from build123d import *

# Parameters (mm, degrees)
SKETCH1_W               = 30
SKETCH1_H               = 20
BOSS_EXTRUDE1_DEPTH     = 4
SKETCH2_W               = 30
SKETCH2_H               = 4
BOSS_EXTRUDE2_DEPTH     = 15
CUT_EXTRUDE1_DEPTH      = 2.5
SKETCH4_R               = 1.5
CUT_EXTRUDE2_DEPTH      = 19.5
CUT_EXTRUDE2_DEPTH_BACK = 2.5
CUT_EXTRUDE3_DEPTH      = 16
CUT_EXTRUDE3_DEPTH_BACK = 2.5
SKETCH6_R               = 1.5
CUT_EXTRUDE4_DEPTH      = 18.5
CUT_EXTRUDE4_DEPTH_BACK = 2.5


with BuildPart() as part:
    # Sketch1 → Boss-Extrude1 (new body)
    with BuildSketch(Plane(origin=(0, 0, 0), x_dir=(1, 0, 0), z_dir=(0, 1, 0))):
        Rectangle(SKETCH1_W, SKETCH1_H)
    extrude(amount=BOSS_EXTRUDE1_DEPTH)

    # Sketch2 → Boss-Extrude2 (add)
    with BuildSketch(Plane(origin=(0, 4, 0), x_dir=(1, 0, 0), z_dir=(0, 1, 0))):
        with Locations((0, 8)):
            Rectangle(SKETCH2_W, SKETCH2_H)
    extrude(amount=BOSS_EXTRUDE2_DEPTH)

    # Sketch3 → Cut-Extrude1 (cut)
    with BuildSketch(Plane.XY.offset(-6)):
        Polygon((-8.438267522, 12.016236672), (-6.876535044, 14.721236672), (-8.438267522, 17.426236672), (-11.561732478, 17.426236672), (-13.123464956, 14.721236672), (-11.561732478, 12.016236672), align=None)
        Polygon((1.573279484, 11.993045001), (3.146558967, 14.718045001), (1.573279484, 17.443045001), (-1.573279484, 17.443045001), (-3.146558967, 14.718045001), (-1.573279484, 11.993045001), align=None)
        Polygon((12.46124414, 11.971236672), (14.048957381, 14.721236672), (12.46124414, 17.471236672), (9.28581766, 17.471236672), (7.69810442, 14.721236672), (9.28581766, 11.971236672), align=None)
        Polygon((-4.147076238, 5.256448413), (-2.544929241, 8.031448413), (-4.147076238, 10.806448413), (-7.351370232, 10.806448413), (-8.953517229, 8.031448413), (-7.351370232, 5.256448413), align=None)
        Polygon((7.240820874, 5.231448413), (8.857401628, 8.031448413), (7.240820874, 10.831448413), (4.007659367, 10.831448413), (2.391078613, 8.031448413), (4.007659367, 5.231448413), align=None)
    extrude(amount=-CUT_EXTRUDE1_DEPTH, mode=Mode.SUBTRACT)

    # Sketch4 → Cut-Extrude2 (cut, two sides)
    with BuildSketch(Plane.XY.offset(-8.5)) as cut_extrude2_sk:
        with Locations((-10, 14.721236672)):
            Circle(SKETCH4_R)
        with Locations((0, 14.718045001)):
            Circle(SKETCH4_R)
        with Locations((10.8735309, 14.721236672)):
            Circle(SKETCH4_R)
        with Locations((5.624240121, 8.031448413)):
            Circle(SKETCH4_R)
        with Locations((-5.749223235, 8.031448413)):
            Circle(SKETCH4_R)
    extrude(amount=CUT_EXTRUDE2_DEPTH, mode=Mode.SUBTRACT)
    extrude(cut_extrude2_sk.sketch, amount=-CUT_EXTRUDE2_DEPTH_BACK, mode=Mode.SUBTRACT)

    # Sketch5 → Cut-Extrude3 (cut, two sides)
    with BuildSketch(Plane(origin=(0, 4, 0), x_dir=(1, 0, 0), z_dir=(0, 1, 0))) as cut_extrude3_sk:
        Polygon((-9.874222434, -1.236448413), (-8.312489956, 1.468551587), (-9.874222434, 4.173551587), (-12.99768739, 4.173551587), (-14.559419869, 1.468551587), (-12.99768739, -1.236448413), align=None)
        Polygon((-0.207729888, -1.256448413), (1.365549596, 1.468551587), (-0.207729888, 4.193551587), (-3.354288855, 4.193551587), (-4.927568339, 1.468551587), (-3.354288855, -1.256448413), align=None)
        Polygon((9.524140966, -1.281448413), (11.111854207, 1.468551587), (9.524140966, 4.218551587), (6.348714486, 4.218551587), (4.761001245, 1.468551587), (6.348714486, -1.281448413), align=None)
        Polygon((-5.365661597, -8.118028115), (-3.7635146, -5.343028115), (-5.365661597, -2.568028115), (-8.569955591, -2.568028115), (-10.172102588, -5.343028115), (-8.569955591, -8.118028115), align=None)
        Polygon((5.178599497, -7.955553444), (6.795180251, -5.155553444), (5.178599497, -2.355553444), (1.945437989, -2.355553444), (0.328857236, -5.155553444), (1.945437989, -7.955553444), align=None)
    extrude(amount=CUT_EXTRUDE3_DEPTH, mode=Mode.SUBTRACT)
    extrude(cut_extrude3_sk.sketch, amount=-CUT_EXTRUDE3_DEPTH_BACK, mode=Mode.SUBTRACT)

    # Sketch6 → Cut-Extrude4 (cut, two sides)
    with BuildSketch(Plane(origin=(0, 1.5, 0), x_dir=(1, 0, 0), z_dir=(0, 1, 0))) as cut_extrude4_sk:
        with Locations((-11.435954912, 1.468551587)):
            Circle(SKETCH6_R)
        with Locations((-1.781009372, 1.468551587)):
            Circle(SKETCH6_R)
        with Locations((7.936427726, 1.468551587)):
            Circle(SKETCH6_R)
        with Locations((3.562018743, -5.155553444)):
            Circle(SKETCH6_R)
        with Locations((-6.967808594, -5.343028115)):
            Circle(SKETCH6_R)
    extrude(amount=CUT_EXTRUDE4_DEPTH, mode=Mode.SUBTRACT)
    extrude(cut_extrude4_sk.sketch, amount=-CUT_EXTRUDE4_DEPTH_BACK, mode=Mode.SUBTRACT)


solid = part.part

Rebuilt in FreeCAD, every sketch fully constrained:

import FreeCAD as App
import Part
import Sketcher
Q = App.Units.Quantity


def add_polygon(sketch, points):
    """Adds a closed chain of lines whose ends are joined by coincident constraints."""
    first, n = sketch.GeometryCount, len(points)
    for a, b in zip(points, points[1:] + points[:1]):
        sketch.addGeometry(Part.LineSegment(App.Vector(*a, 0), App.Vector(*b, 0)), False)
    for i in range(n):
        sketch.addConstraint(Sketcher.Constraint("Coincident", first + i, 2, first + (i + 1) % n, 1))

doc = App.newDocument("Part")
body = doc.addObject("PartDesign::Body", "Body")

sketch1 = body.newObject("Sketcher::SketchObject", "Sketch")
sketch1.AttachmentSupport = (doc.getObject("XZ_Plane"), [""])
sketch1.MapMode = "FlatFace"
add_polygon(sketch1, [(-15, -10), (-15, 10), (15, 10), (15, -10)])
sketch1.addConstraint([
    Sketcher.Constraint("Vertical", 0),
    Sketcher.Constraint("Horizontal", 1),
    Sketcher.Constraint("Vertical", 2),
    Sketcher.Constraint("Horizontal", 3),
    Sketcher.Constraint("Symmetric", 0, 2, 2, 2, -1, 1),
    Sketcher.Constraint("DistanceX", 1, 1, 1, 2, Q("30 mm")),
    Sketcher.Constraint("DistanceY", 0, 1, 0, 2, Q("20 mm")),
])
pad1 = body.newObject("PartDesign::Pad", "Pad")
pad1.Profile = sketch1
pad1.Length = 4
pad1.Reversed = True

sketch2 = body.newObject("Sketcher::SketchObject", "Sketch001")
sketch2.AttachmentSupport = (doc.getObject("XZ_Plane"), [""])
sketch2.MapMode = "FlatFace"
sketch2.AttachmentOffset = App.Placement(App.Vector(0, 0, -4), App.Rotation())
add_polygon(sketch2, [(-15, -10), (-15, -6), (15, -6), (15, -10)])
sketch2.addConstraint([
    Sketcher.Constraint("Vertical", 0),
    Sketcher.Constraint("Horizontal", 1),
    Sketcher.Constraint("Vertical", 2),
    Sketcher.Constraint("Horizontal", 3),
    Sketcher.Constraint("DistanceX", 1, 1, 1, 2, Q("30 mm")),
    Sketcher.Constraint("DistanceY", 0, 1, 0, 2, Q("4 mm")),
    Sketcher.Constraint("DistanceX", 0, 2, -1, 1, Q("15 mm")),
    Sketcher.Constraint("DistanceY", 0, 2, -1, 1, Q("6 mm")),
])
pad2 = body.newObject("PartDesign::Pad", "Pad001")
pad2.Profile = sketch2
pad2.Length = 15
pad2.Reversed = True

sketch3 = body.newObject("Sketcher::SketchObject", "Sketch002")
sketch3.AttachmentSupport = (doc.getObject("XY_Plane"), [""])
sketch3.MapMode = "FlatFace"
sketch3.AttachmentOffset = App.Placement(App.Vector(0, 0, -6), App.Rotation())
add_polygon(sketch3, [(-8.4, 12), (-6.9, 14.7), (-8.4, 17.4), (-11.6, 17.4), (-13.1, 14.7), (-11.6, 12)])
add_polygon(sketch3, [(1.6, 12), (3.1, 14.7), (1.6, 17.4), (-1.6, 17.4), (-3.1, 14.7), (-1.6, 12)])
add_polygon(sketch3, [(12.5, 12), (14, 14.7), (12.5, 17.5), (9.3, 17.5), (7.7, 14.7), (9.3, 12)])
add_polygon(sketch3, [(-4.1, 5.3), (-2.5, 8), (-4.1, 10.8), (-7.4, 10.8), (-9, 8), (-7.4, 5.3)])
add_polygon(sketch3, [(7.2, 5.2), (8.9, 8), (7.2, 10.8), (4, 10.8), (2.4, 8), (4, 5.2)])
sketch3.addConstraint([
    Sketcher.Constraint("Horizontal", 2),
    Sketcher.Constraint("Horizontal", 5),
    Sketcher.Constraint("Horizontal", 8),
    Sketcher.Constraint("Horizontal", 11),
    Sketcher.Constraint("Horizontal", 14),
    Sketcher.Constraint("Horizontal", 17),
    Sketcher.Constraint("Horizontal", 20),
    Sketcher.Constraint("Horizontal", 23),
    Sketcher.Constraint("Horizontal", 26),
    Sketcher.Constraint("Horizontal", 29),
    Sketcher.Constraint("Symmetric", 6, 2, 9, 2, -2),
    Sketcher.Constraint("Parallel", 0, 3),
    Sketcher.Constraint("Parallel", 1, 4),
    Sketcher.Constraint("Parallel", 3, 6),
    Sketcher.Constraint("Parallel", 4, 7),
    Sketcher.Constraint("Parallel", 6, 9),
    Sketcher.Constraint("Parallel", 7, 10),
    Sketcher.Constraint("Parallel", 9, 12),
    Sketcher.Constraint("Parallel", 10, 13),
    Sketcher.Constraint("Parallel", 12, 15),
    Sketcher.Constraint("Parallel", 13, 16),
    Sketcher.Constraint("Parallel", 15, 18),
    Sketcher.Constraint("Parallel", 16, 19),
    Sketcher.Constraint("Parallel", 18, 21),
    Sketcher.Constraint("Parallel", 19, 22),
    Sketcher.Constraint("Parallel", 21, 24),
    Sketcher.Constraint("Parallel", 22, 25),
    Sketcher.Constraint("Parallel", 24, 27),
    Sketcher.Constraint("Parallel", 25, 28),
    Sketcher.Constraint("Horizontal", 0, 2, 3, 2),
    Sketcher.Constraint("Horizontal", 3, 2, 12, 2),
    Sketcher.Constraint("Horizontal", 12, 2, 15, 2),
    Sketcher.Constraint("Horizontal", 18, 2, 21, 2),
    Sketcher.Constraint("Horizontal", 21, 2, 24, 2),
    Sketcher.Constraint("Horizontal", 24, 2, 27, 2),
    Sketcher.Constraint("Vertical", 2, 2, 4, 2),
    Sketcher.Constraint("Vertical", 1, 2, 5, 2),
    Sketcher.Constraint("Vertical", 8, 2, 10, 2),
    Sketcher.Constraint("Vertical", 14, 2, 16, 2),
    Sketcher.Constraint("Vertical", 20, 2, 22, 2),
    Sketcher.Constraint("Vertical", 26, 2, 28, 2),
    Sketcher.Constraint("Angle", 0, Q("60 deg")),
    Sketcher.Constraint("DistanceY", 16, 2, 14, 2, Q("5.5 mm")),
    Sketcher.Constraint("DistanceY", 24, 2, 25, 2, Q("2.8 mm")),
    Sketcher.Constraint("DistanceY", 4, 2, 2, 2, Q("5.41 mm")),
    Sketcher.Constraint("DistanceY", 10, 2, 8, 2, Q("5.45 mm")),
    Sketcher.Constraint("DistanceY", 22, 2, 20, 2, Q("5.55 mm")),
    Sketcher.Constraint("DistanceX", 8, 2, 8, 1, Q("3.146559 mm")),
    Sketcher.Constraint("DistanceX", 26, 2, 26, 1, Q("3.233162 mm")),
    Sketcher.Constraint("DistanceX", -1, 1, 24, 2, Q("8.857402 mm")),
    Sketcher.Constraint("DistanceX", 6, 2, 12, 2, Q("10.902398 mm")),
    Sketcher.Constraint("DistanceX", 2, 2, 2, 1, Q("3.123465 mm")),
    Sketcher.Constraint("DistanceX", 14, 2, 14, 1, Q("3.175426 mm")),
    Sketcher.Constraint("DistanceX", 20, 2, 20, 1, Q("3.204294 mm")),
    Sketcher.Constraint("DistanceX", 18, 2, -1, 1, Q("2.544929 mm")),
    Sketcher.Constraint("DistanceY", -1, 1, 18, 2, Q("8.031448 mm")),
    Sketcher.Constraint("DistanceY", 6, 2, 0, 2, Q("0.003192 mm")),
    Sketcher.Constraint("DistanceX", 4, 2, 6, 2, Q("14.708291 mm")),
    Sketcher.Constraint("DistanceY", 18, 2, 5, 2, Q("3.984788 mm")),
])
pocket1 = body.newObject("PartDesign::Pocket", "Pocket")
pocket1.Profile = sketch3
pocket1.Length = 2.5

sketch4 = body.newObject("Sketcher::SketchObject", "Sketch003")
sketch4.AttachmentSupport = (doc.getObject("XY_Plane"), [""])
sketch4.MapMode = "FlatFace"
sketch4.AttachmentOffset = App.Placement(App.Vector(0, 0, -8.5), App.Rotation())
sketch4.addGeometry([
    Part.Circle(App.Vector(-10, 14.7, 0), App.Vector(0, 0, 1), 1.5),
    Part.Circle(App.Vector(0, 14.7, 0), App.Vector(0, 0, 1), 1.5),
    Part.Circle(App.Vector(10.9, 14.7, 0), App.Vector(0, 0, 1), 1.5),
    Part.Circle(App.Vector(5.6, 8, 0), App.Vector(0, 0, 1), 1.5),
    Part.Circle(App.Vector(-5.7, 8, 0), App.Vector(0, 0, 1), 1.5),
], False)
sketch4.addConstraint([
    Sketcher.Constraint("Equal", 0, 1),
    Sketcher.Constraint("Equal", 1, 2),
    Sketcher.Constraint("Equal", 2, 3),
    Sketcher.Constraint("Equal", 3, 4),
    Sketcher.Constraint("PointOnObject", 1, 3, -2),
    Sketcher.Constraint("Horizontal", 0, 3, 2, 3),
    Sketcher.Constraint("Horizontal", 3, 3, 4, 3),
    Sketcher.Constraint("Diameter", 0, Q("3 mm")),
    Sketcher.Constraint("DistanceX", 0, 3, -1, 1, Q("10 mm")),
    Sketcher.Constraint("DistanceX", -1, 1, 2, 3, Q("10.873531 mm")),
    Sketcher.Constraint("DistanceX", -1, 1, 3, 3, Q("5.62424 mm")),
    Sketcher.Constraint("DistanceY", -1, 1, 3, 3, Q("8.031448 mm")),
    Sketcher.Constraint("DistanceY", 1, 3, 0, 3, Q("0.003192 mm")),
    Sketcher.Constraint("DistanceY", 3, 3, 2, 3, Q("6.689788 mm")),
    Sketcher.Constraint("DistanceX", 4, 3, -1, 1, Q("5.749223 mm")),
])
pocket2 = body.newObject("PartDesign::Pocket", "Pocket001")
pocket2.Profile = sketch4
pocket2.Type = "ThroughAll"
pocket2.Midplane = True

sketch5 = body.newObject("Sketcher::SketchObject", "Sketch004")
sketch5.AttachmentSupport = (doc.getObject("XZ_Plane"), [""])
sketch5.MapMode = "FlatFace"
sketch5.AttachmentOffset = App.Placement(App.Vector(0, 0, -4), App.Rotation())
add_polygon(sketch5, [(-9.9, 1.2), (-8.3, -1.5), (-9.9, -4.2), (-13, -4.2), (-14.6, -1.5), (-13, 1.2)])
add_polygon(sketch5, [(-0.2, 1.3), (1.4, -1.5), (-0.2, -4.2), (-3.4, -4.2), (-4.9, -1.5), (-3.4, 1.3)])
add_polygon(sketch5, [(9.5, 1.3), (11.1, -1.5), (9.5, -4.2), (6.3, -4.2), (4.8, -1.5), (6.3, 1.3)])
add_polygon(sketch5, [(-5.4, 8.1), (-3.8, 5.3), (-5.4, 2.6), (-8.6, 2.6), (-10.2, 5.3), (-8.6, 8.1)])
add_polygon(sketch5, [(5.2, 8), (6.8, 5.2), (5.2, 2.4), (1.9, 2.4), (0.3, 5.2), (1.9, 8)])
sketch5.addConstraint([
    Sketcher.Constraint("Horizontal", 2),
    Sketcher.Constraint("Horizontal", 5),
    Sketcher.Constraint("Horizontal", 8),
    Sketcher.Constraint("Horizontal", 11),
    Sketcher.Constraint("Horizontal", 14),
    Sketcher.Constraint("Horizontal", 17),
    Sketcher.Constraint("Horizontal", 20),
    Sketcher.Constraint("Horizontal", 23),
    Sketcher.Constraint("Horizontal", 26),
    Sketcher.Constraint("Horizontal", 29),
    Sketcher.Constraint("Parallel", 0, 3),
    Sketcher.Constraint("Parallel", 1, 4),
    Sketcher.Constraint("Parallel", 3, 6),
    Sketcher.Constraint("Parallel", 4, 7),
    Sketcher.Constraint("Parallel", 6, 9),
    Sketcher.Constraint("Parallel", 7, 10),
    Sketcher.Constraint("Parallel", 9, 12),
    Sketcher.Constraint("Parallel", 10, 13),
    Sketcher.Constraint("Parallel", 12, 15),
    Sketcher.Constraint("Parallel", 13, 16),
    Sketcher.Constraint("Parallel", 15, 18),
    Sketcher.Constraint("Parallel", 16, 19),
    Sketcher.Constraint("Parallel", 18, 21),
    Sketcher.Constraint("Parallel", 19, 22),
    Sketcher.Constraint("Parallel", 21, 24),
    Sketcher.Constraint("Parallel", 22, 25),
    Sketcher.Constraint("Parallel", 24, 27),
    Sketcher.Constraint("Parallel", 25, 28),
    Sketcher.Constraint("Horizontal", 0, 2, 3, 2),
    Sketcher.Constraint("Horizontal", 3, 2, 6, 2),
    Sketcher.Constraint("Horizontal", 6, 2, 9, 2),
    Sketcher.Constraint("Horizontal", 9, 2, 12, 2),
    Sketcher.Constraint("Horizontal", 12, 2, 15, 2),
    Sketcher.Constraint("Horizontal", 18, 2, 21, 2),
    Sketcher.Constraint("Horizontal", 24, 2, 27, 2),
    Sketcher.Constraint("Vertical", 2, 2, 4, 2),
    Sketcher.Constraint("Vertical", 1, 2, 5, 2),
    Sketcher.Constraint("Vertical", 8, 2, 10, 2),
    Sketcher.Constraint("Vertical", 14, 2, 16, 2),
    Sketcher.Constraint("Vertical", 20, 2, 22, 2),
    Sketcher.Constraint("Vertical", 26, 2, 28, 2),
    Sketcher.Constraint("Angle", 0, Q("-60 deg")),
    Sketcher.Constraint("DistanceY", 14, 2, 16, 2, Q("5.5 mm")),
    Sketcher.Constraint("DistanceY", 25, 2, 24, 2, Q("2.8 mm")),
    Sketcher.Constraint("DistanceY", 2, 2, 4, 2, Q("5.41 mm")),
    Sketcher.Constraint("DistanceY", 7, 2, 1, 2, Q("0.02 mm")),
    Sketcher.Constraint("DistanceY", 20, 2, 22, 2, Q("5.55 mm")),
    Sketcher.Constraint("DistanceX", -1, 1, 15, 2, Q("4.761001 mm")),
    Sketcher.Constraint("DistanceX", 8, 2, 8, 1, Q("3.146559 mm")),
    Sketcher.Constraint("DistanceX", 26, 2, 26, 1, Q("3.233162 mm")),
    Sketcher.Constraint("DistanceX", -1, 1, 25, 2, Q("5.178599 mm")),
    Sketcher.Constraint("DistanceX", 0, 2, 8, 2, Q("4.958201 mm")),
    Sketcher.Constraint("DistanceX", 2, 2, 2, 1, Q("3.123465 mm")),
    Sketcher.Constraint("DistanceX", 14, 2, 14, 1, Q("3.175426 mm")),
    Sketcher.Constraint("DistanceX", 20, 2, 20, 1, Q("3.204294 mm")),
    Sketcher.Constraint("DistanceX", 0, 2, -1, 1, Q("8.31249 mm")),
    Sketcher.Constraint("DistanceY", 0, 2, -1, 1, Q("1.468552 mm")),
    Sketcher.Constraint("DistanceY", -1, 1, 18, 2, Q("5.343028 mm")),
    Sketcher.Constraint("DistanceX", 19, 2, -1, 1, Q("5.365662 mm")),
    Sketcher.Constraint("DistanceY", -1, 1, 24, 2, Q("5.155553 mm")),
])
pocket3 = body.newObject("PartDesign::Pocket", "Pocket002")
pocket3.Profile = sketch5
pocket3.Type = "TwoLengths"
pocket3.Length = 16
pocket3.Length2 = 2.5

sketch6 = body.newObject("Sketcher::SketchObject", "Sketch005")
sketch6.AttachmentSupport = (doc.getObject("XZ_Plane"), [""])
sketch6.MapMode = "FlatFace"
sketch6.AttachmentOffset = App.Placement(App.Vector(0, 0, -1.5), App.Rotation())
sketch6.addGeometry([
    Part.Circle(App.Vector(-11.4, -1.5, 0), App.Vector(0, 0, 1), 1.5),
    Part.Circle(App.Vector(-1.8, -1.5, 0), App.Vector(0, 0, 1), 1.5),
    Part.Circle(App.Vector(7.9, -1.5, 0), App.Vector(0, 0, 1), 1.5),
    Part.Circle(App.Vector(3.6, 5.2, 0), App.Vector(0, 0, 1), 1.5),
    Part.Circle(App.Vector(-7, 5.3, 0), App.Vector(0, 0, 1), 1.5),
], False)
sketch6.addConstraint([
    Sketcher.Constraint("Equal", 0, 1),
    Sketcher.Constraint("Equal", 1, 2),
    Sketcher.Constraint("Equal", 2, 3),
    Sketcher.Constraint("Equal", 3, 4),
    Sketcher.Constraint("Horizontal", 0, 3, 1, 3),
    Sketcher.Constraint("Horizontal", 1, 3, 2, 3),
    Sketcher.Constraint("Diameter", 0, Q("3 mm")),
    Sketcher.Constraint("DistanceX", 4, 3, 1, 3, Q("5.186799 mm")),
    Sketcher.Constraint("DistanceY", 0, 3, -1, 1, Q("1.468552 mm")),
    Sketcher.Constraint("DistanceX", 1, 3, -1, 1, Q("1.781009 mm")),
    Sketcher.Constraint("DistanceX", -1, 1, 3, 3, Q("3.562019 mm")),
    Sketcher.Constraint("DistanceY", -1, 1, 4, 3, Q("5.343028 mm")),
    Sketcher.Constraint("DistanceX", 3, 3, 2, 3, Q("4.374409 mm")),
    Sketcher.Constraint("DistanceX", 0, 3, -1, 1, Q("11.435955 mm")),
    Sketcher.Constraint("DistanceY", -1, 1, 3, 3, Q("5.155553 mm")),
])
pocket4 = body.newObject("PartDesign::Pocket", "Pocket003")
pocket4.Profile = sketch6
pocket4.Type = "ThroughAll"
pocket4.Midplane = True

doc.recompute()
